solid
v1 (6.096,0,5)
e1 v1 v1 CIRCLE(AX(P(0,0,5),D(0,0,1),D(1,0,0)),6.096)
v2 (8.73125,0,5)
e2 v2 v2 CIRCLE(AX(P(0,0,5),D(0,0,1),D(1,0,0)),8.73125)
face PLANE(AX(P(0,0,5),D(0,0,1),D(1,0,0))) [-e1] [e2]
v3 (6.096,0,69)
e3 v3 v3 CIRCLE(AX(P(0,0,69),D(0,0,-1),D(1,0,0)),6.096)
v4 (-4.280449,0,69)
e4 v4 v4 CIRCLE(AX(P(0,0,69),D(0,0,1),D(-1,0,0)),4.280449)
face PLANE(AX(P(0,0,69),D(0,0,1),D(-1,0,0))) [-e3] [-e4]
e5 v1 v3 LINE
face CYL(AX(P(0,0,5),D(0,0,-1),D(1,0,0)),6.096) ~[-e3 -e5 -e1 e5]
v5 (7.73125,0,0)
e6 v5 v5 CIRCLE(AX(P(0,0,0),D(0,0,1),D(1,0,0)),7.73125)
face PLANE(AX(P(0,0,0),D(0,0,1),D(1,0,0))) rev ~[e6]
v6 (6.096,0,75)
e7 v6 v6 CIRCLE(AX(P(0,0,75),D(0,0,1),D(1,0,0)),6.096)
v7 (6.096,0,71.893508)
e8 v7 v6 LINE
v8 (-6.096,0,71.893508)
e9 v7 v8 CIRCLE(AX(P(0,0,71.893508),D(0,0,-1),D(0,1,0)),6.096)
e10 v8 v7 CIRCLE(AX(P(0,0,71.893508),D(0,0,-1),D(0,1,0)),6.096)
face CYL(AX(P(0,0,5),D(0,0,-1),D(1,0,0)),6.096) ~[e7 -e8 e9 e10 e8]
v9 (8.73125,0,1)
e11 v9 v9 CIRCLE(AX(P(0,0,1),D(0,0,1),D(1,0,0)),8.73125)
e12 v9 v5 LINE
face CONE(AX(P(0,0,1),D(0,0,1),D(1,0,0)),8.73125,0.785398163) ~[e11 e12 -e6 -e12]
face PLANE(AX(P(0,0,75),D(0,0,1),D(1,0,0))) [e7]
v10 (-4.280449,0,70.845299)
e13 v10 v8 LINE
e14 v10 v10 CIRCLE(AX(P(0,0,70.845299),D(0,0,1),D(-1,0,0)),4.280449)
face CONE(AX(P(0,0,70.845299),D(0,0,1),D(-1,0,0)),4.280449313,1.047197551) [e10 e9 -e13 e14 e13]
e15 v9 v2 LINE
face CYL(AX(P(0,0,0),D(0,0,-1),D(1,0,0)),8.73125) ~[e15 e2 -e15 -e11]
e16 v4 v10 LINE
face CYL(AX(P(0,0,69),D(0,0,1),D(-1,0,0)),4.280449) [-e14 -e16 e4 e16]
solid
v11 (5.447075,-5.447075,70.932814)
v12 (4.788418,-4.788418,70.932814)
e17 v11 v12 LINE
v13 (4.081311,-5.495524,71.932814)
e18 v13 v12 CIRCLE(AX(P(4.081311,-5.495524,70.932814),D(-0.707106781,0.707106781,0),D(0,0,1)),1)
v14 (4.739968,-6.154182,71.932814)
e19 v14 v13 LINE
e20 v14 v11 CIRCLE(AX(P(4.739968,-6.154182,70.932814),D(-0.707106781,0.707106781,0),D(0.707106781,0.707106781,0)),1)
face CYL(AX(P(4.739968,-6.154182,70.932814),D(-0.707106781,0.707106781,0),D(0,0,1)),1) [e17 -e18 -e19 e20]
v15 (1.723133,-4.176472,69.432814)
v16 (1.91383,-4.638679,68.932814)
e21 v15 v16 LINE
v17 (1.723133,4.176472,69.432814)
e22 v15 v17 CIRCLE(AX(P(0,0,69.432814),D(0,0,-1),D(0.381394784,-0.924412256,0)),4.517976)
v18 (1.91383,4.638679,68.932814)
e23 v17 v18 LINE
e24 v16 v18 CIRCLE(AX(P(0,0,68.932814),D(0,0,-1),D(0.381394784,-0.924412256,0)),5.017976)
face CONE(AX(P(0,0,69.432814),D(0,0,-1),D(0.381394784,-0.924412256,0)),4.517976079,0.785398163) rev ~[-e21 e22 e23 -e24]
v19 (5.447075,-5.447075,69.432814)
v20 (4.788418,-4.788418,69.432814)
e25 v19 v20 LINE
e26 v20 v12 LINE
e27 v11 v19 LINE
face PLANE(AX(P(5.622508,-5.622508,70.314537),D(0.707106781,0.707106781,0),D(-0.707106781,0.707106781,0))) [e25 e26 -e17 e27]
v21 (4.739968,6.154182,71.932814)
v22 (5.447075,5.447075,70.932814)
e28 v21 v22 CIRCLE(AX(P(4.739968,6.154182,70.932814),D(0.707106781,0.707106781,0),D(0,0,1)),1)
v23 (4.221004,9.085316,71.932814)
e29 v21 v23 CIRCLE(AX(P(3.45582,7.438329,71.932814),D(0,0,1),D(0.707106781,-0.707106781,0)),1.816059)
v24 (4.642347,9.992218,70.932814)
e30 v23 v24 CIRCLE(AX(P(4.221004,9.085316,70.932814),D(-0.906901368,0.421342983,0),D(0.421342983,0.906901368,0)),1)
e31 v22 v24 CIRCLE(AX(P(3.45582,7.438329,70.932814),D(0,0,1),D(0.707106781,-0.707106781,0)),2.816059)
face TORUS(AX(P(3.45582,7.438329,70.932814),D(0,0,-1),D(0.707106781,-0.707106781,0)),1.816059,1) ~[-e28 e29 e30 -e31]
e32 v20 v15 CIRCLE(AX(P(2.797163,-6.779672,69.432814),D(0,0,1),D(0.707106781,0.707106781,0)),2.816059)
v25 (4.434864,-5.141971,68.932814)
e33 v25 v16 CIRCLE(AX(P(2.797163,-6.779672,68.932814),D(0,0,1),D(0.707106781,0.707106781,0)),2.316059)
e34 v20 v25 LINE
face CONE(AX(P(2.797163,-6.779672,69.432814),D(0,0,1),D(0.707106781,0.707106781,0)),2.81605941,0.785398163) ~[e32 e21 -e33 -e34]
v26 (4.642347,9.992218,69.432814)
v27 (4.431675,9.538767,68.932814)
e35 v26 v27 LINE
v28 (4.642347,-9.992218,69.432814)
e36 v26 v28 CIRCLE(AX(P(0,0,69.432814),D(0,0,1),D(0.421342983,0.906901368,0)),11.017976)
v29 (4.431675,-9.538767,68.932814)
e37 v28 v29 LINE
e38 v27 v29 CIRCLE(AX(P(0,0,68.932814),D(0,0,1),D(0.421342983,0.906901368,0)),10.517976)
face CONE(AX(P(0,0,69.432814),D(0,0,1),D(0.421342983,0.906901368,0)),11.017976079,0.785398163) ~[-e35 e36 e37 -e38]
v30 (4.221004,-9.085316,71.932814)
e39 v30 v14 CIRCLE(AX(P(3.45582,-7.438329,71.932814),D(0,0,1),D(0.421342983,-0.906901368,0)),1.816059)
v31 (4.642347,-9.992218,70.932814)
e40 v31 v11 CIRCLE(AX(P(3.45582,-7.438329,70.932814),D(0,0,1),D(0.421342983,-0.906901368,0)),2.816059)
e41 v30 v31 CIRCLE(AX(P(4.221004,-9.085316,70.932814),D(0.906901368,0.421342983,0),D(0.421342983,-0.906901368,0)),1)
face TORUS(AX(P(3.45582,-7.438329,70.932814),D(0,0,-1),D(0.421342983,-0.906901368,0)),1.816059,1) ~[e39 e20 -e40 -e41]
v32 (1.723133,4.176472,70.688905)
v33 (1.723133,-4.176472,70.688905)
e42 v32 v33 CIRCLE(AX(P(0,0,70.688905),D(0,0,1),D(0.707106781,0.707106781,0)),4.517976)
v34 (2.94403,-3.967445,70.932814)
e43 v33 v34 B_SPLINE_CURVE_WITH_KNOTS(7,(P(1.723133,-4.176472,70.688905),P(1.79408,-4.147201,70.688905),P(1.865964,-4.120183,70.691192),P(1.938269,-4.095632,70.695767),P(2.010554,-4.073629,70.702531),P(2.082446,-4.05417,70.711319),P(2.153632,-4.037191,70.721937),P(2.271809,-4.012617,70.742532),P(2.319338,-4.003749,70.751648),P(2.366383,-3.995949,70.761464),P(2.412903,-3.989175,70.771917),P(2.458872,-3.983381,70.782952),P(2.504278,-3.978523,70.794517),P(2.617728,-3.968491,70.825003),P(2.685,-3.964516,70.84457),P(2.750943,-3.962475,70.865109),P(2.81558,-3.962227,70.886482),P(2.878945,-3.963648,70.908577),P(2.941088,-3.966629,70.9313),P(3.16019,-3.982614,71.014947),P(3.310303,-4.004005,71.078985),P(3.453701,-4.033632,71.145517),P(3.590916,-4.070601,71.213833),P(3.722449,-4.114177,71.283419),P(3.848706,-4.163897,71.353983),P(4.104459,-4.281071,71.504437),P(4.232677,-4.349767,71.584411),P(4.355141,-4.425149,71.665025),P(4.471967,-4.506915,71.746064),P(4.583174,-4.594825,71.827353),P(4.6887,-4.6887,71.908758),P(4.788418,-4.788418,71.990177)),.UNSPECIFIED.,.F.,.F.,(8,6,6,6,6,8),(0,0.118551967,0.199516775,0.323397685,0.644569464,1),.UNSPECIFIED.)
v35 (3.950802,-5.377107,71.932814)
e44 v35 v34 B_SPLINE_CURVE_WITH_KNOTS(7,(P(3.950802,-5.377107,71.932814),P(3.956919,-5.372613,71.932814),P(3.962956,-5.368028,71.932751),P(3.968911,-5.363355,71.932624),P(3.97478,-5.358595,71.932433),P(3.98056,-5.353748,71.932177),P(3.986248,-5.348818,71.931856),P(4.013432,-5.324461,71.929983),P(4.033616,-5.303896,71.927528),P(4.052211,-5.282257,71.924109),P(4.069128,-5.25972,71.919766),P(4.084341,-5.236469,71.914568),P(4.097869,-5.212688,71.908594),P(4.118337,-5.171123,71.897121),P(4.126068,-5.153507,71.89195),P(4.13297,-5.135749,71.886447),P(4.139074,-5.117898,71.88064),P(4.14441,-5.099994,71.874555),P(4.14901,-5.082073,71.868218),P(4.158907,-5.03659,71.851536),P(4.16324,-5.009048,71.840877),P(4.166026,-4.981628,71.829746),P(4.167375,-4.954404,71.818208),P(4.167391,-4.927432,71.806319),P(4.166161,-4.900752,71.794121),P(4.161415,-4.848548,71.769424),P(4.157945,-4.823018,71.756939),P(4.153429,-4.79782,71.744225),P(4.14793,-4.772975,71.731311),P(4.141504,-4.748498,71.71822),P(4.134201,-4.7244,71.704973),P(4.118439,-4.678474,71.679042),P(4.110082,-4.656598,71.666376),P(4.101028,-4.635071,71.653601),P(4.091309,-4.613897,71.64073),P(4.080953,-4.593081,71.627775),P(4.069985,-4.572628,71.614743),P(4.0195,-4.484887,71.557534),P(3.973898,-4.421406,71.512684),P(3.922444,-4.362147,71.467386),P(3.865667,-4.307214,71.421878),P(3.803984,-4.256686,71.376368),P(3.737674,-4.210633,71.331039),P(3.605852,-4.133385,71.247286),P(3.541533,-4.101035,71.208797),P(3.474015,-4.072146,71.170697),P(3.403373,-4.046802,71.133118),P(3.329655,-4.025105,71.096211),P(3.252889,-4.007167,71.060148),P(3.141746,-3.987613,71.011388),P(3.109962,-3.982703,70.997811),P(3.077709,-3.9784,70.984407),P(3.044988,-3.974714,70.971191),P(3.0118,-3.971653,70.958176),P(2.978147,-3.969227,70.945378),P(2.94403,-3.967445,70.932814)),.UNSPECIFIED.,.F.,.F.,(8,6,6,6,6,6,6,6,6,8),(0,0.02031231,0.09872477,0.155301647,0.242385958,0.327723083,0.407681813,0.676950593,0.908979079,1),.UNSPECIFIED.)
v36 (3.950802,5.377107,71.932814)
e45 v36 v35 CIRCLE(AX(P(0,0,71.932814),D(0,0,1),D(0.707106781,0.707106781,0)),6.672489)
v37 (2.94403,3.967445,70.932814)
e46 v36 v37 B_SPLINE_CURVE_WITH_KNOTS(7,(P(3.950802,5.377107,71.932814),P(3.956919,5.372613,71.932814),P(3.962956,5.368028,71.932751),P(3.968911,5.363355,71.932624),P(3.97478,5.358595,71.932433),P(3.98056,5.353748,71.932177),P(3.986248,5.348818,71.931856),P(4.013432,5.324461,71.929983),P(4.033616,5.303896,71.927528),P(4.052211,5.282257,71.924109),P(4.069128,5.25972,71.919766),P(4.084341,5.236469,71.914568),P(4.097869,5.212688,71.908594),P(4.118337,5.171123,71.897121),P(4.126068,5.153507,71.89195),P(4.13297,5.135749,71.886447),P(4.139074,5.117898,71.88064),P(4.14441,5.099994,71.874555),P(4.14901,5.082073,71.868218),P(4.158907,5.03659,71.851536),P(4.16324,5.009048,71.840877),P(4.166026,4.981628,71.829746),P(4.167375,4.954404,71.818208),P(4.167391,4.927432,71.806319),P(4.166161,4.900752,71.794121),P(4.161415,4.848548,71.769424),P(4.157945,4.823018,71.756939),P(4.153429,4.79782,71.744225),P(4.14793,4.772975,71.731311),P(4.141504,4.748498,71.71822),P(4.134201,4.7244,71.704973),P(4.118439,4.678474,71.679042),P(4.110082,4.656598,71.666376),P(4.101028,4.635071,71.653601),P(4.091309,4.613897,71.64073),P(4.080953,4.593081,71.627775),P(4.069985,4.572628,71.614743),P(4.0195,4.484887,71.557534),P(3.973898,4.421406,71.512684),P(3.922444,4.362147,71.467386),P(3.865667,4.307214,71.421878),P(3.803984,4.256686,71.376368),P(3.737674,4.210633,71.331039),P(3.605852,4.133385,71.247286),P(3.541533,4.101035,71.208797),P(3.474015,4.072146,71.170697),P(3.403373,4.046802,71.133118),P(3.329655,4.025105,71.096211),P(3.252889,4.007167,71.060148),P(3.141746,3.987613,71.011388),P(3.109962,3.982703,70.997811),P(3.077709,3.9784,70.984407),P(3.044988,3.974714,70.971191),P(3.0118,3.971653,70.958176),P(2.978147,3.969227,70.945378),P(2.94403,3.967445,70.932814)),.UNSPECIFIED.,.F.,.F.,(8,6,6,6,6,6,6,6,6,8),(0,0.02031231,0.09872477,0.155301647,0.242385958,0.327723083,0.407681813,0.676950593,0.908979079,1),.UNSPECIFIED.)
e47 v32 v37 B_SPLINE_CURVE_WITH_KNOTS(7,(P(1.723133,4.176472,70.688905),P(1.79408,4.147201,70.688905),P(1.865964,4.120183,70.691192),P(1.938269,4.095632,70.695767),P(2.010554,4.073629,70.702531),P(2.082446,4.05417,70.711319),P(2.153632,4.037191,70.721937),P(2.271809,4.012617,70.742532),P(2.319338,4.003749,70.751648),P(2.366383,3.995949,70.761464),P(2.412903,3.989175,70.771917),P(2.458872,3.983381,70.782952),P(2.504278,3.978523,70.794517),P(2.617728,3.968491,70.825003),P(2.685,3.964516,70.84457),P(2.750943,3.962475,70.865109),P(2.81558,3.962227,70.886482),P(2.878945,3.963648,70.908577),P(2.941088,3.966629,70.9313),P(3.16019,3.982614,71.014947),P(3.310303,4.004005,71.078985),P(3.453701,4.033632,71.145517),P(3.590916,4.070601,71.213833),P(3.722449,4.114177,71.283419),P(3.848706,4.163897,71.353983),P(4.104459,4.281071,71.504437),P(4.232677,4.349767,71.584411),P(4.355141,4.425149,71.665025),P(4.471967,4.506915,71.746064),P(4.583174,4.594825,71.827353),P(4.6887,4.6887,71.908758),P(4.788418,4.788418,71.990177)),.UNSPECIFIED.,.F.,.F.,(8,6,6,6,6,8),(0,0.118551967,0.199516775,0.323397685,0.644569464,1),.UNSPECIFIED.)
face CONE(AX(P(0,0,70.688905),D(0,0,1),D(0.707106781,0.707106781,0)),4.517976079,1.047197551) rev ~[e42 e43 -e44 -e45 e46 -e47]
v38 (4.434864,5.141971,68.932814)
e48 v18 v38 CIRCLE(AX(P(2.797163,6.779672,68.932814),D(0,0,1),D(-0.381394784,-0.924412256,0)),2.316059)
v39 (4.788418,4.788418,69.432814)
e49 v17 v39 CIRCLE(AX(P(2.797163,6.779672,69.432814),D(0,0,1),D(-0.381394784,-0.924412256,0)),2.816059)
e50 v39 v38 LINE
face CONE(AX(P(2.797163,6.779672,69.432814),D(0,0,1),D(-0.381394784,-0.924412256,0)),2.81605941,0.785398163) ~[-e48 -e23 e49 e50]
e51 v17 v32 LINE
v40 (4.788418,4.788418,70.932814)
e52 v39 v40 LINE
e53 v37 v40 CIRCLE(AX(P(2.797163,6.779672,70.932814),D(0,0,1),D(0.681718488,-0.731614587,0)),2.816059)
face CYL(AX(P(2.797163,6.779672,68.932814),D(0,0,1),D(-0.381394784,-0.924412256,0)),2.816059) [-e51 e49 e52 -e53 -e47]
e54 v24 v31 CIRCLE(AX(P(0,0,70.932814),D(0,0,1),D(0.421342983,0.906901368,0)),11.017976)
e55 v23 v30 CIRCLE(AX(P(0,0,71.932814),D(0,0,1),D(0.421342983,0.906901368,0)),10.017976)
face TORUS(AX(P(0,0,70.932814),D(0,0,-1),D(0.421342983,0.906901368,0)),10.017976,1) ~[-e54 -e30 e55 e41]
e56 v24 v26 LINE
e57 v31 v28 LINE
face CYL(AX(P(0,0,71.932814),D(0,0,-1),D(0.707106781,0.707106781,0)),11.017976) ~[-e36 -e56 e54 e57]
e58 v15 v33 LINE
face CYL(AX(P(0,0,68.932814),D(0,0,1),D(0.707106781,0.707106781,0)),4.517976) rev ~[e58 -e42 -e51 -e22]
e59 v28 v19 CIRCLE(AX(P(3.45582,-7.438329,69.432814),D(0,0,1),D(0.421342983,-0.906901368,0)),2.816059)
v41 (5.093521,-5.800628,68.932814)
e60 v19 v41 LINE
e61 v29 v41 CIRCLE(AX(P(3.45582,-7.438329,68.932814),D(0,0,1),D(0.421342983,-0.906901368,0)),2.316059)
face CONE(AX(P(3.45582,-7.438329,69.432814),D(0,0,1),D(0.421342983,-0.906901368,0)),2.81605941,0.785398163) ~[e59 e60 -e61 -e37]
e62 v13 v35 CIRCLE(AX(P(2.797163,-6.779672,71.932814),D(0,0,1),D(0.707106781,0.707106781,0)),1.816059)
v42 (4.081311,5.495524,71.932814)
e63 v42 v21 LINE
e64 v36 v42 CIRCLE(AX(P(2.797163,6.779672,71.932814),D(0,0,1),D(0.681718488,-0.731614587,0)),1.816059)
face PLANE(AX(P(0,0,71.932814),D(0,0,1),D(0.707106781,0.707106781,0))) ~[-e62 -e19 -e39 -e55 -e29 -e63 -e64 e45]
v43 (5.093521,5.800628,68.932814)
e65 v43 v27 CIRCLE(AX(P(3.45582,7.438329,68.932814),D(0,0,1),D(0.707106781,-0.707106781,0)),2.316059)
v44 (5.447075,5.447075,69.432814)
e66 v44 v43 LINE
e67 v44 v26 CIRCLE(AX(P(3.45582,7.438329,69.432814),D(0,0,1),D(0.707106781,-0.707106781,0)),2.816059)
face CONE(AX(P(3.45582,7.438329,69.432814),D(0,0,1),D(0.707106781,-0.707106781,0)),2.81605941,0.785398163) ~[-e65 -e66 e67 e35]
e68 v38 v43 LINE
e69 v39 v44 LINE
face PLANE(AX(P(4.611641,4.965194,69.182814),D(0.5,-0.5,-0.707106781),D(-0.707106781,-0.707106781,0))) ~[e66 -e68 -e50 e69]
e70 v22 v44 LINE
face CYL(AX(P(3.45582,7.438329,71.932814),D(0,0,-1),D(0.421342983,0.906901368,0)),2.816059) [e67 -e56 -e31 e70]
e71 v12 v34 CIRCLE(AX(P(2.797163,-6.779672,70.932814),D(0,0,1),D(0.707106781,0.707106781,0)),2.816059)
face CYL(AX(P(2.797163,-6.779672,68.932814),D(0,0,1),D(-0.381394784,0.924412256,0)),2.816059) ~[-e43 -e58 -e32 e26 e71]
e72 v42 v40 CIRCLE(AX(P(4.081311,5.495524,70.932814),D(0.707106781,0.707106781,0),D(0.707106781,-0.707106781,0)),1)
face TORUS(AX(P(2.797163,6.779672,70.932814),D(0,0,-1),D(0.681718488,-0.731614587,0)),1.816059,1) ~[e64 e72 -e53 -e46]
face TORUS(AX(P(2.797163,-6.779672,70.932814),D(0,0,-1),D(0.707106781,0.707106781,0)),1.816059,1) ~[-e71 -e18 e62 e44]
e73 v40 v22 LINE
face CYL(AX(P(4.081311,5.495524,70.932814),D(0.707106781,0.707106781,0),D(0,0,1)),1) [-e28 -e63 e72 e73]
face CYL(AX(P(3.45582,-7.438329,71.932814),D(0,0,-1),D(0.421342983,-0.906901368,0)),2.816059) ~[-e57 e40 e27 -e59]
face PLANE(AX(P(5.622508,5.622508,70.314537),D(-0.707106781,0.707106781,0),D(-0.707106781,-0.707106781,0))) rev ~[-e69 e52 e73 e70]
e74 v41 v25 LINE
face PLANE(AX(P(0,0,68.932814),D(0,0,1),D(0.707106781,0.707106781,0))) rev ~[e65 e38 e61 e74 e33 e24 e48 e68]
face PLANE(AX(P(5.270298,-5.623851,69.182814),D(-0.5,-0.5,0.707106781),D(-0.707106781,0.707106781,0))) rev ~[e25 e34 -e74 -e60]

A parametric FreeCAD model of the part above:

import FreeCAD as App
import Part
import Sketcher
from FreeCAD import Vector
Q = App.Units.Quantity


def edges_at(feature, points):
    """Names of the edges that pass closest to the given points."""
    edges = feature.Shape.Edges
    near = lambda p: min(range(len(edges)), key=lambda i: edges[i].distToShape(Part.Vertex(*p))[0])
    return sorted({f"Edge{near(p) + 1}" for p in points})


def add_polygon(sketch, points):
    """Adds a closed chain of lines whose ends are joined by coincident constraints."""
    first, n = sketch.GeometryCount, len(points)
    for a, b in zip(points, points[1:] + points[:1]):
        sketch.addGeometry(Part.LineSegment(App.Vector(*a, 0), App.Vector(*b, 0)), False)
    for i in range(n):
        sketch.addConstraint(Sketcher.Constraint("Coincident", first + i, 2, first + (i + 1) % n, 1))

doc = App.newDocument("Part")
body = doc.addObject("PartDesign::Body", "Body")

sketch1 = body.newObject("Sketcher::SketchObject", "Sketch")
sketch1.AttachmentSupport = (doc.getObject("XY_Plane"), [""])
sketch1.MapMode = "FlatFace"
sketch1.addGeometry(Part.Circle(Vector(0, 0, 0), Vector(0, 0, 1), 9), False)
sketch1.addConstraint(Sketcher.Constraint("Coincident", 0, 3, -1, 1))
sketch1.addConstraint(Sketcher.Constraint("Diameter", 0, 17.4625))
pad1 = body.newObject("PartDesign::Pad", "Pad")
pad1.Profile = sketch1
pad1.Length = 5

sketch2 = body.newObject("Sketcher::SketchObject", "Sketch001")
sketch2.AttachmentSupport = (doc.getObject("XY_Plane"), [""])
sketch2.MapMode = "FlatFace"
sketch2.AttachmentOffset = App.Placement(Vector(0, 0, 5), App.Rotation())
sketch2.addGeometry(Part.Circle(Vector(0, 0, 0), Vector(0, 0, 1), 6), False)
sketch2.addConstraint(Sketcher.Constraint("Coincident", 0, 3, -1, 1))
sketch2.addConstraint(Sketcher.Constraint("Diameter", 0, 12.192))
pad2 = body.newObject("PartDesign::Pad", "Pad001")
pad2.Profile = sketch2
pad2.Length = 70

sketch3 = body.newObject("Sketcher::SketchObject", "Sketch002")
sketch3.AttachmentSupport = (doc.getObject("XZ_Plane"), [""])
sketch3.MapMode = "FlatFace"
add_polygon(sketch3, [(-6.3, 72), (-6.3, 69), (-4.3, 69), (-4.3, 70.8)])
sketch3.addConstraint(Sketcher.Constraint("Vertical", 0))
sketch3.addConstraint(Sketcher.Constraint("Horizontal", 1))
sketch3.addConstraint(Sketcher.Constraint("Vertical", 2))
sketch3.addConstraint(Sketcher.Constraint("DistanceX", 1, 1, 1, 2, 2.0))
sketch3.addConstraint(Sketcher.Constraint("DistanceY", 0, 2, 0, 1, 3.0))
sketch3.addConstraint(Sketcher.Constraint("Angle", 3, Q("150 deg")))
sketch3.addConstraint(Sketcher.Constraint("DistanceY", -1, 1, 0, 2, 69.0))
sketch3.addConstraint(Sketcher.Constraint("DistanceX", 0, 2, -1, 1, 6.280449))
groove = body.newObject("PartDesign::Groove", "Groove")
groove.Profile = sketch3
groove.ReferenceAxis = (sketch3, ["V_Axis"])
groove.Angle = 360
doc.recompute()

chamfer = body.newObject("PartDesign::Chamfer", "Chamfer")
chamfer.Base = (groove, edges_at(groove, [(-8.731, 0, 0)]))
chamfer.Size = 1
body2 = doc.addObject("PartDesign::Body", "Body001")

sketch4 = body2.newObject("Sketcher::SketchObject", "Sketch003")
sketch4.Placement = App.Placement(Vector(0, 0, 0), App.Rotation(Vector(-0.707106781, -0.707106781, 0), Vector(0, 0, 0.999999999), Vector(-0.707106781, 0.707106781, 0), "ZXY"))
add_polygon(sketch4, [(-11, 71.9), (-11, 68.9), (-4.5, 68.9), (-4.5, 70.7), (-6.7, 71.9)])
sketch4.addConstraint(Sketcher.Constraint("Vertical", 0))
sketch4.addConstraint(Sketcher.Constraint("Horizontal", 1))
sketch4.addConstraint(Sketcher.Constraint("Vertical", 2))
sketch4.addConstraint(Sketcher.Constraint("Horizontal", 4))
sketch4.addConstraint(Sketcher.Constraint("DistanceY", 0, 2, 0, 1, 3.0))
sketch4.addConstraint(Sketcher.Constraint("Angle", 3, Q("150 deg")))
sketch4.addConstraint(Sketcher.Constraint("DistanceX", 1, 1, 1, 2, 6.5))
sketch4.addConstraint(Sketcher.Constraint("DistanceY", 2, 1, 2, 2, 1.756091))
sketch4.addConstraint(Sketcher.Constraint("DistanceX", 3, 2, -1, 1, 6.672489))
sketch4.addConstraint(Sketcher.Constraint("DistanceY", -1, 1, 0, 2, 68.932814))
revolution = body2.newObject("PartDesign::Revolution", "Revolution")
revolution.Profile = sketch4
revolution.ReferenceAxis = (sketch4, ["V_Axis"])
revolution.Angle = 270
doc.recompute()

fillet = body2.newObject("PartDesign::Fillet", "Fillet")
fillet.Base = (revolution, edges_at(revolution, [
    (3.195, 3.195, 69.811),
    (3.195, -3.195, 69.811),
    (7.791, 7.791, 70.433),
    (7.791, -7.791, 70.433),
]))
fillet.Radius = 2.816059
doc.recompute()

chamfer2 = body2.newObject("PartDesign::Chamfer", "Chamfer001")
chamfer2.Base = (fillet, edges_at(fillet, [(-11.018, 0, 68.933)]))
chamfer2.Size = 0.5
doc.recompute()

fillet2 = body2.newObject("PartDesign::Fillet", "Fillet001")
fillet2.Base = (chamfer2, edges_at(chamfer2, [(6.229, -7.929, 71.933)]))
fillet2.Radius = 1

doc.recompute()
